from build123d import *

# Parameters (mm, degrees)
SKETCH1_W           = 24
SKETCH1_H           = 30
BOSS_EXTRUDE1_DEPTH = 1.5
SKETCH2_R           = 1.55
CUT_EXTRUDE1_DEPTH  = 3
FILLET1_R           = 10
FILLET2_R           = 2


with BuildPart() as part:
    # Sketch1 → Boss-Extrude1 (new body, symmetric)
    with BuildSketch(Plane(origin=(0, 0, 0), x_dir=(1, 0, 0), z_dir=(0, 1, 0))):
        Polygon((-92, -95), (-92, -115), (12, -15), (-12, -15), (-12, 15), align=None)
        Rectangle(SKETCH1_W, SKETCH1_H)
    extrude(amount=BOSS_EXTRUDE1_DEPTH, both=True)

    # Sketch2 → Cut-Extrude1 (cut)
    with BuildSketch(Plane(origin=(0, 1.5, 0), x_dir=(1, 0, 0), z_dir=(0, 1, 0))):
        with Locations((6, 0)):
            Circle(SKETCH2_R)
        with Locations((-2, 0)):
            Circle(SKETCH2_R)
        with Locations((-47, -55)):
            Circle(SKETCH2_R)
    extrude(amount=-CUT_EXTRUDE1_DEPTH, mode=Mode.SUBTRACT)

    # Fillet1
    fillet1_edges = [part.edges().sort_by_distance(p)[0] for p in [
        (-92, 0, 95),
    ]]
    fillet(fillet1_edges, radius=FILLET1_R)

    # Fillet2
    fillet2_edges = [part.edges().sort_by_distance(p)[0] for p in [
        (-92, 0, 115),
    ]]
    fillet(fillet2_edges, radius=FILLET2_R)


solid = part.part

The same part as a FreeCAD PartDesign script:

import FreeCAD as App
import Part
import Sketcher
from FreeCAD import Vector


def edges_at(feature, points):
    """Names of the edges that pass closest to the given points."""
    edges = feature.Shape.Edges
    near = lambda p: min(range(len(edges)), key=lambda i: edges[i].distToShape(Part.Vertex(*p))[0])
    return sorted({f"Edge{near(p) + 1}" for p in points})


def add_polygon(sketch, points):
    """Adds a closed chain of lines whose ends are joined by coincident constraints."""
    first, n = sketch.GeometryCount, len(points)
    for a, b in zip(points, points[1:] + points[:1]):
        sketch.addGeometry(Part.LineSegment(App.Vector(*a, 0), App.Vector(*b, 0)), False)
    for i in range(n):
        sketch.addConstraint(Sketcher.Constraint("Coincident", first + i, 2, first + (i + 1) % n, 1))

doc = App.newDocument("Part")
body = doc.addObject("PartDesign::Body", "Body")

sketch1 = body.newObject("Sketcher::SketchObject", "Sketch")
sketch1.AttachmentSupport = (doc.getObject("XZ_Plane"), [""])
sketch1.MapMode = "FlatFace"
add_polygon(sketch1, [(-92, 95), (-92, 115), (12, 15), (12, -15), (-12, -15)])
sketch1.addConstraint([
    Sketcher.Constraint("Vertical", 0),
    Sketcher.Constraint("Vertical", 2),
    Sketcher.Constraint("Horizontal", 3),
    Sketcher.Constraint("Symmetric", 1, 2, 3, 2, -1, 1),
    Sketcher.Constraint("DistanceX", 3, 2, 3, 1, 24.0),
    Sketcher.Constraint("DistanceY", 0, 1, 0, 2, 20.0),
    Sketcher.Constraint("DistanceY", 2, 2, 2, 1, 30.0),
    Sketcher.Constraint("DistanceX", 0, 2, -1, 1, 92.0),
    Sketcher.Constraint("DistanceY", -1, 1, 0, 2, 115.0),
])
pad1 = body.newObject("PartDesign::Pad", "Pad")
pad1.Profile = sketch1
pad1.Length = 3
pad1.Midplane = True

sketch2 = body.newObject("Sketcher::SketchObject", "Sketch001")
sketch2.AttachmentSupport = (doc.getObject("XZ_Plane"), [""])
sketch2.MapMode = "FlatFace"
sketch2.AttachmentOffset = App.Placement(Vector(0, 0, -1.5), App.Rotation())
sketch2.addGeometry([
    Part.Circle(Vector(6, 0, 0), Vector(0, 0, 1), 1.6),
    Part.Circle(Vector(-2, 0, 0), Vector(0, 0, 1), 1.6),
    Part.Circle(Vector(-47, 55, 0), Vector(0, 0, 1), 1.6),
], False)
sketch2.addConstraint([
    Sketcher.Constraint("Equal", 0, 1),
    Sketcher.Constraint("Equal", 1, 2),
    Sketcher.Constraint("PointOnObject", 0, 3, -1),
    Sketcher.Constraint("PointOnObject", 1, 3, -1),
    Sketcher.Constraint("Diameter", 0, 3.1),
    Sketcher.Constraint("DistanceX", -1, 1, 0, 3, 6.0),
    Sketcher.Constraint("DistanceX", 1, 3, -1, 1, 2.0),
    Sketcher.Constraint("DistanceX", 2, 3, -1, 1, 47.0),
    Sketcher.Constraint("DistanceY", -1, 1, 2, 3, 55.0),
])
pocket1 = body.newObject("PartDesign::Pocket", "Pocket")
pocket1.Profile = sketch2
pocket1.Length = 3
pocket1.Reversed = True
doc.recompute()

fillet = body.newObject("PartDesign::Fillet", "Fillet")
fillet.Base = (pocket1, edges_at(pocket1, [(-92, 0, 95)]))
fillet.Radius = 10
doc.recompute()

fillet2 = body.newObject("PartDesign::Fillet", "Fillet001")
fillet2.Base = (fillet, edges_at(fillet, [(-92, 0, 115)]))
fillet2.Radius = 2

doc.recompute()
